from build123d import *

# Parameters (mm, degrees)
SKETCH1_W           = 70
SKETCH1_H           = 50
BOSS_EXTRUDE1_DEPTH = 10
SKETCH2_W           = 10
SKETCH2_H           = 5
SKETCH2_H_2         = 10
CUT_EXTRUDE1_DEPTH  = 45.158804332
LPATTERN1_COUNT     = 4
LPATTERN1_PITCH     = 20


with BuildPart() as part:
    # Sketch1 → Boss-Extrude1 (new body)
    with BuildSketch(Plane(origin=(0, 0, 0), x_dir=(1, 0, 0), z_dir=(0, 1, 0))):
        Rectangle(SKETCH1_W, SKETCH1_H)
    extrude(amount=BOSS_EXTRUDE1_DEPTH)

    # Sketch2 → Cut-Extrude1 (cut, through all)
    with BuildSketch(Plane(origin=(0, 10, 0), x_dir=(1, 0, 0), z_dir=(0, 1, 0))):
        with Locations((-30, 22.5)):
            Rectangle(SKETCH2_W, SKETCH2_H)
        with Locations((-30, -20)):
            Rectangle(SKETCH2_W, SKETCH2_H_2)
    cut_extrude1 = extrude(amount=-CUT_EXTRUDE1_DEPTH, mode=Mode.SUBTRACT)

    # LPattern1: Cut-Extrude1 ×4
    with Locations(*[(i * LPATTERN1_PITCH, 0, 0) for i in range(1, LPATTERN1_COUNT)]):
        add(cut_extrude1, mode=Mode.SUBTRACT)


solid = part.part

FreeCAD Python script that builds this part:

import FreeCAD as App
import Part
import Sketcher

V = App.Vector
Q = App.Units.Quantity


def add_polygon(sketch, points):
    """Adds a closed chain of lines whose ends are joined by coincident constraints."""
    first, n = sketch.GeometryCount, len(points)
    for a, b in zip(points, points[1:] + points[:1]):
        sketch.addGeometry(Part.LineSegment(App.Vector(*a, 0), App.Vector(*b, 0)), False)
    for i in range(n):
        sketch.addConstraint(Sketcher.Constraint("Coincident", first + i, 2, first + (i + 1) % n, 1))

doc = App.newDocument("Part")
body = doc.addObject("PartDesign::Body", "Body")

# Sketch on XZ plane
sketch1 = body.newObject("Sketcher::SketchObject", "Sketch")
sketch1.AttachmentSupport = (doc.getObject("XZ_Plane"), [""])
sketch1.MapMode = "FlatFace"
add_polygon(sketch1, [(-35, -25), (-35, 25), (35, 25), (35, -25)])  # lines 0-3
sketch1.addConstraint([
    Sketcher.Constraint("Vertical", 0),
    Sketcher.Constraint("Horizontal", 1),
    Sketcher.Constraint("Vertical", 2),
    Sketcher.Constraint("Horizontal", 3),
    Sketcher.Constraint("Symmetric", 0, 2, 2, 2, -1, 1),
    Sketcher.Constraint("DistanceX", 1, 1, 1, 2, Q("70 mm")),
    Sketcher.Constraint("DistanceY", 0, 1, 0, 2, Q("50 mm")),
])
pad1 = body.newObject("PartDesign::Pad", "Pad")
pad1.Profile = sketch1
pad1.Length = 10
pad1.Reversed = True

# Sketch on XZ plane
sketch2 = body.newObject("Sketcher::SketchObject", "Sketch001")
sketch2.AttachmentSupport = (doc.getObject("XZ_Plane"), [""])
sketch2.MapMode = "FlatFace"
sketch2.AttachmentOffset = App.Placement(V(0, 0, -10), App.Rotation())
add_polygon(sketch2, [(-35, -25), (-35, -20), (-25, -20), (-25, -25)])  # lines 0-3
add_polygon(sketch2, [(-35, 15), (-35, 25), (-25, 25), (-25, 15)])  # lines 4-7
sketch2.addConstraint([
    Sketcher.Constraint("Vertical", 0),
    Sketcher.Constraint("Horizontal", 1),
    Sketcher.Constraint("Vertical", 2),
    Sketcher.Constraint("Horizontal", 3),
    Sketcher.Constraint("Vertical", 4),
    Sketcher.Constraint("Horizontal", 5),
    Sketcher.Constraint("Vertical", 6),
    Sketcher.Constraint("Horizontal", 7),
    Sketcher.Constraint("Symmetric", 3, 2, 4, 2, -1),
    Sketcher.Constraint("Vertical", 2, 2, 5, 2),
    Sketcher.Constraint("Equal", 7, 4),
    Sketcher.Constraint("DistanceX", 1, 1, 1, 2, Q("10 mm")),
    Sketcher.Constraint("DistanceY", 0, 1, 0, 2, Q("5 mm")),
    Sketcher.Constraint("DistanceX", 0, 2, -1, 1, Q("35 mm")),
    Sketcher.Constraint("DistanceY", 0, 2, -1, 1, Q("20 mm")),
])
pocket1 = body.newObject("PartDesign::Pocket", "Pocket")
pocket1.Profile = sketch2
pocket1.Type = "ThroughAll"
pocket1.Reversed = True
doc.recompute()

linearpattern = body.newObject("PartDesign::LinearPattern", "LinearPattern")
linearpattern.Originals = [pocket1]
linearpattern.Direction = (doc.getObject("X_Axis"), [""])
linearpattern.Mode = "offset"
linearpattern.Offset = 20
linearpattern.Occurrences = 4
body.Tip = linearpattern

doc.recompute()
